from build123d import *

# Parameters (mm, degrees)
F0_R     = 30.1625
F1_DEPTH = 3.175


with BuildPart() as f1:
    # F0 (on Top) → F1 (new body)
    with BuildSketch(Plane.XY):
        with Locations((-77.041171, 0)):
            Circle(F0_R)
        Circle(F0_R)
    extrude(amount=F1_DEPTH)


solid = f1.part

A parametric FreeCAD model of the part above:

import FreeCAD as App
import Part
import Sketcher

V = App.Vector
Q = App.Units.Quantity

doc = App.newDocument("Part")
body = doc.addObject("PartDesign::Body", "Body")
body.AllowCompound = True

# Sketch on XY plane
sketch1 = doc.addObject("Sketcher::SketchObject", "Sketch")
body.addObject(sketch1)
sketch1.AttachmentSupport = (doc.XY_Plane, [""])
sketch1.MapMode = "FlatFace"
sketch1.addGeometry(Part.Circle(V(-77, 0, 0), V(0, 0, 1), 30), False)
sketch1.addGeometry(Part.Circle(V(0, 0, 0), V(0, 0, 1), 30), False)
sketch1.addConstraint(Sketcher.Constraint("Coincident", 1, 3, -1, 1))
sketch1.addConstraint(Sketcher.Constraint("Equal", 0, 1))
sketch1.addConstraint(Sketcher.Constraint("PointOnObject", 0, 3, -1))
sketch1.addConstraint(Sketcher.Constraint("Diameter", 0, Q("2.375 in")))
sketch1.addConstraint(Sketcher.Constraint("DistanceX", 0, 3, -1, 1, Q("77.041171 mm")))
pad1 = doc.addObject("PartDesign::Pad", "Pad")
body.addObject(pad1)
pad1.Profile = sketch1
pad1.Length = Q("0.125 in")

doc.recompute()
